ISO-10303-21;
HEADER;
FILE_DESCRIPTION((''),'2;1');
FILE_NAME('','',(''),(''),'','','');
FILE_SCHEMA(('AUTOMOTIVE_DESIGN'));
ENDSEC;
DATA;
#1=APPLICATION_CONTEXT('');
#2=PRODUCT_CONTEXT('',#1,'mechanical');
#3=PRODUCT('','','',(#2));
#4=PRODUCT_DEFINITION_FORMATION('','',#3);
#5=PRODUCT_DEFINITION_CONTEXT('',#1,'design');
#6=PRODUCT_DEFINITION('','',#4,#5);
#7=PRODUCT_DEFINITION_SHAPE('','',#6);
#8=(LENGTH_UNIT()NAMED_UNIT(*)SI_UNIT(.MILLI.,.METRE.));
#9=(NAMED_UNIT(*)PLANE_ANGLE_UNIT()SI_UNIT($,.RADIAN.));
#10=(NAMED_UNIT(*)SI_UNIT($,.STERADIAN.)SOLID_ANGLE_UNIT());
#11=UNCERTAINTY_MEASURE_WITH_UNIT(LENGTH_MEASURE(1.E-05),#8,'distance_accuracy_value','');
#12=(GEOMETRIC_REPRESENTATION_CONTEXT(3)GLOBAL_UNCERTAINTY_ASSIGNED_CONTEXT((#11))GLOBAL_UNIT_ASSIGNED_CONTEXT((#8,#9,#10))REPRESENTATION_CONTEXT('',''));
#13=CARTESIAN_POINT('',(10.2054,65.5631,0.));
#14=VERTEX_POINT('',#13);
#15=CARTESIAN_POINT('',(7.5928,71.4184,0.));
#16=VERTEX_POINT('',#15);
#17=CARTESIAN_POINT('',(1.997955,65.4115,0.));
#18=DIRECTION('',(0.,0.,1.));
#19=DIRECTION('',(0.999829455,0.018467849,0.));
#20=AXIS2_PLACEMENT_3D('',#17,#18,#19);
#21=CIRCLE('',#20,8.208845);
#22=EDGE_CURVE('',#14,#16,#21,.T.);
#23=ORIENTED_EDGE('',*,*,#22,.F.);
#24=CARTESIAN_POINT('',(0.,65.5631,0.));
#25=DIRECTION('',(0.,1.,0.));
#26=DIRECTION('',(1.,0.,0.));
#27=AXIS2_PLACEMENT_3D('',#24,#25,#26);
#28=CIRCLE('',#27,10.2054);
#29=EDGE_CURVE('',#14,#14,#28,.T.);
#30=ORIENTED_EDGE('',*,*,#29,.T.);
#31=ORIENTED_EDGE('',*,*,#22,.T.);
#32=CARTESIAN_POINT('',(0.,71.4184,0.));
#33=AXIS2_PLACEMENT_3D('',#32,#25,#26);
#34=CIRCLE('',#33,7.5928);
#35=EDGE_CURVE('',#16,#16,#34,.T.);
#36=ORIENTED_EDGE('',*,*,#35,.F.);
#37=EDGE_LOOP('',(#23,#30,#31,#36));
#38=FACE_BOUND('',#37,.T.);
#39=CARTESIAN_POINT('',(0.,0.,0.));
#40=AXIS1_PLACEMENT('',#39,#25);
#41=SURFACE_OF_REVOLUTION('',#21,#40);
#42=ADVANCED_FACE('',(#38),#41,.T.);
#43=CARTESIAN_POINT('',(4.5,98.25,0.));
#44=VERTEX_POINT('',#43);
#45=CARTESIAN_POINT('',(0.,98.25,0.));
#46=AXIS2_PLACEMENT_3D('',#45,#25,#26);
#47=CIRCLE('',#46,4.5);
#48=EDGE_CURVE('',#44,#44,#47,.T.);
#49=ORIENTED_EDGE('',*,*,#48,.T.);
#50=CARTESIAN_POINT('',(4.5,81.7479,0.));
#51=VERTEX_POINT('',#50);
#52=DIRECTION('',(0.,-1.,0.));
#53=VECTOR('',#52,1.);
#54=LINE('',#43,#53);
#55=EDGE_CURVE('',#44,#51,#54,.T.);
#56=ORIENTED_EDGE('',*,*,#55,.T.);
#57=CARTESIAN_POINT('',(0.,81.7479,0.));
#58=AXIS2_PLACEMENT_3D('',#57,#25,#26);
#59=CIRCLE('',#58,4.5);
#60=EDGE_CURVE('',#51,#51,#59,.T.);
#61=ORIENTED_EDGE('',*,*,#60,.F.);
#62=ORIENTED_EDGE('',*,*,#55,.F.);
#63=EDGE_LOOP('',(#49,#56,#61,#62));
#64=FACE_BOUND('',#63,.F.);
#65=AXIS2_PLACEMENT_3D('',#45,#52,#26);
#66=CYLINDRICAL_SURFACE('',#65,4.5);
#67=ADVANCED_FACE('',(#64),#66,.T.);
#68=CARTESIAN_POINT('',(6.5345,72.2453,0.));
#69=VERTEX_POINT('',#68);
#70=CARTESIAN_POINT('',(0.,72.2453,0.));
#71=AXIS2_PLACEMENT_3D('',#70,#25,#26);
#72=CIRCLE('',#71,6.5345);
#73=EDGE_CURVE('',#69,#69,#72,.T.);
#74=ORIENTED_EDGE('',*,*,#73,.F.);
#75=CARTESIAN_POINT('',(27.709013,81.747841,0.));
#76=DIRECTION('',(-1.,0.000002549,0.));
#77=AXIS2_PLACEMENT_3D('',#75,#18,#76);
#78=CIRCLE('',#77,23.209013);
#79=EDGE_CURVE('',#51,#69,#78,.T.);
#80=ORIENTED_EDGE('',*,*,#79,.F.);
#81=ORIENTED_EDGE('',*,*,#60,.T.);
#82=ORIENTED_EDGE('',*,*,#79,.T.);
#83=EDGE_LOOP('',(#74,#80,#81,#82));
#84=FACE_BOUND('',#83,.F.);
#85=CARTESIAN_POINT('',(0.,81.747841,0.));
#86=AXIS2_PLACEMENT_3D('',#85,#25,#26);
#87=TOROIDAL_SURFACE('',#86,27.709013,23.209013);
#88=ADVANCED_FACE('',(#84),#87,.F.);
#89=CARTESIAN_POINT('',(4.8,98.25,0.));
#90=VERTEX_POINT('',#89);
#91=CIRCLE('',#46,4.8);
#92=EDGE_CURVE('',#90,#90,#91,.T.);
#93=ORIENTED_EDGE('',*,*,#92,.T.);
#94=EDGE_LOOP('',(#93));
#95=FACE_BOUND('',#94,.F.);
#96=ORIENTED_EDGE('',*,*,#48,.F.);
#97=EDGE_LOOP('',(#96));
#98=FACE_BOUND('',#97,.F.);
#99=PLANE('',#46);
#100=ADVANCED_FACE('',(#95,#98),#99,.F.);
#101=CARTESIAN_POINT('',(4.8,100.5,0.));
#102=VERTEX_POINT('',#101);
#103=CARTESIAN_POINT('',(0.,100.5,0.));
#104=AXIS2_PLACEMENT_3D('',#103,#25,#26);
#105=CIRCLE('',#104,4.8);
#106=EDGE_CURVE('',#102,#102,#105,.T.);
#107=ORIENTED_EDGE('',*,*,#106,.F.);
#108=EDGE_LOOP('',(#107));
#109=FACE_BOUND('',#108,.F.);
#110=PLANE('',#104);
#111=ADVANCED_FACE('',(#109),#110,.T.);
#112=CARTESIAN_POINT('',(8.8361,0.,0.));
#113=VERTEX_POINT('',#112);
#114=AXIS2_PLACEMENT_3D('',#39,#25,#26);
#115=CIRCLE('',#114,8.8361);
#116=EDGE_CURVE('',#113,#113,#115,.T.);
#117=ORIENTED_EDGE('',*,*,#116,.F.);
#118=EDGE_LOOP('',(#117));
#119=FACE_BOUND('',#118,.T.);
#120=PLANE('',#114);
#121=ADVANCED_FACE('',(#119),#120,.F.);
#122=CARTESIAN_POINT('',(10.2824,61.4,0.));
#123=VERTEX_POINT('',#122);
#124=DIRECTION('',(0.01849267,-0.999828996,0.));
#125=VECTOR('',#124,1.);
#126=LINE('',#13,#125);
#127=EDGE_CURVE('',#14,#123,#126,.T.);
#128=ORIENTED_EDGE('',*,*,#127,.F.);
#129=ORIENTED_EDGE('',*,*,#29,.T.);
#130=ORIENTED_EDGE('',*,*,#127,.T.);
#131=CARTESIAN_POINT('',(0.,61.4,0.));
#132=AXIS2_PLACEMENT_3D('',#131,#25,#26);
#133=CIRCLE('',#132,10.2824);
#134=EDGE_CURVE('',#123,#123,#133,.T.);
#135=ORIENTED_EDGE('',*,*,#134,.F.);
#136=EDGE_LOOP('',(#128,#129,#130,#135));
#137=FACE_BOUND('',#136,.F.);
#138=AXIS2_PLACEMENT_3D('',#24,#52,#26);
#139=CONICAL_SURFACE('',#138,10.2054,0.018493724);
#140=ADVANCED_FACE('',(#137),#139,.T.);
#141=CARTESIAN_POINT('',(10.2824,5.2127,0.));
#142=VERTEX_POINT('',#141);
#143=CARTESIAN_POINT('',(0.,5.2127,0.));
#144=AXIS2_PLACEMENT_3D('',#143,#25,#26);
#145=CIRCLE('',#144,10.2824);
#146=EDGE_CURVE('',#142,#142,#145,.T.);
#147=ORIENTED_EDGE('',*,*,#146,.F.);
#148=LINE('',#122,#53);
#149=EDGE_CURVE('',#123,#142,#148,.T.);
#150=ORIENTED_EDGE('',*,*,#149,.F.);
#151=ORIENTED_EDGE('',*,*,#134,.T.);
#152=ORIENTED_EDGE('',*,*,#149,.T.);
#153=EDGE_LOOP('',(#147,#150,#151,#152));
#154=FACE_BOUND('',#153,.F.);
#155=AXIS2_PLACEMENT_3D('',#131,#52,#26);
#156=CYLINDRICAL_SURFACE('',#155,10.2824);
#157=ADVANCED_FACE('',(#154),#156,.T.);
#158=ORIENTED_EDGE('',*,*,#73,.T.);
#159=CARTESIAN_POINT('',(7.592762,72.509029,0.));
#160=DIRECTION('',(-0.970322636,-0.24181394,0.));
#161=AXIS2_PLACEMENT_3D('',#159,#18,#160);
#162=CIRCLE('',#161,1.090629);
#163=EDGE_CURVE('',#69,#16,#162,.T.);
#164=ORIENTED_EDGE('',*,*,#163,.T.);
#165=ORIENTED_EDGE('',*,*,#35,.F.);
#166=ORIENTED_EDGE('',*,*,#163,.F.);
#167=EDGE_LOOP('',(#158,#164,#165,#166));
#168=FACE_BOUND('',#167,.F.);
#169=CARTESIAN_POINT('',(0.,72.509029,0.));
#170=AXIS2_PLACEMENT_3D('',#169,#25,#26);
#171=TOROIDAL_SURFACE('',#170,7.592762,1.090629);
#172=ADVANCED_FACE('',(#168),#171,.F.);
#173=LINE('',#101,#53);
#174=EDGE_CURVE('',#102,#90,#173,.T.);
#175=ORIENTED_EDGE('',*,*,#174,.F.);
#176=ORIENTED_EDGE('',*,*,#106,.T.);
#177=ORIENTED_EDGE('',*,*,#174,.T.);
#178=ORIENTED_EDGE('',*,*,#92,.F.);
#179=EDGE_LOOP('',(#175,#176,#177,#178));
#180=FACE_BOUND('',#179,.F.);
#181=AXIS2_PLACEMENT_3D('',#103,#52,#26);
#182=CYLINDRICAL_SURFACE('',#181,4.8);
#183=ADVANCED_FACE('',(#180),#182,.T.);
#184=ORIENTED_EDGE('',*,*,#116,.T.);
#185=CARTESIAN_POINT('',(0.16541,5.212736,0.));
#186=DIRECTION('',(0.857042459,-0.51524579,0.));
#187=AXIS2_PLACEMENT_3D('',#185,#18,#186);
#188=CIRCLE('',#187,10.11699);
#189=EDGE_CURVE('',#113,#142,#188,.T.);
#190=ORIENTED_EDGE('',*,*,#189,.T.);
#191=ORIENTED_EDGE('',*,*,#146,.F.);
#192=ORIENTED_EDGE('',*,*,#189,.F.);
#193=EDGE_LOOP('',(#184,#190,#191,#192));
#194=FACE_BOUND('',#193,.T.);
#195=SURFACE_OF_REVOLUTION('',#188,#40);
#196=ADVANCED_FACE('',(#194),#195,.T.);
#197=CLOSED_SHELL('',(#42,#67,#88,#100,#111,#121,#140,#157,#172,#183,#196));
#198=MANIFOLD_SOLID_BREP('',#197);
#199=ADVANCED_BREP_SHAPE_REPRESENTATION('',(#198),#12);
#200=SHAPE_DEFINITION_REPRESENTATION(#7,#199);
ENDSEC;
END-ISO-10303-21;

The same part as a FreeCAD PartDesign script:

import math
import FreeCAD as App
import Part
import Sketcher
Q = App.Units.Quantity

doc = App.newDocument("Part")
params = doc.addObject("Spreadsheet::Sheet", "Params")
for row, (alias, value) in enumerate([
    ("sketch1_width", "0.3 mm"),
    ("sketch1_width2", "4.8 mm"),
    ("sketch1_height", "100.5 mm"),
    ("sketch1_height2", "2.25 mm"),
    ("revolution_angle", "360 deg"),
], start=1):
    params.set(f"A{row}", alias)
    params.set(f"B{row}", "=" + value)
    params.setAlias(f"B{row}", alias)

body = doc.addObject("PartDesign::Body", "Body")

# Sketch on XY plane
sketch1 = body.newObject("Sketcher::SketchObject", "Sketch")
sketch1.AttachmentSupport = (doc.getObject("XY_Plane"), [""])
sketch1.MapMode = "FlatFace"
sketch1.addGeometry([
    Part.LineSegment(App.Vector(0, 100.5, 0), App.Vector(0, 0, 0)),  # 0
    Part.LineSegment(App.Vector(0, 0, 0), App.Vector(8.8361, 0, 0)),  # 1
    Part.ArcOfCircle(Part.Circle(App.Vector(0.1654, 5.2127, 0), App.Vector(0, 0, 1), 10.11698), math.radians(-31.013679), math.radians(0)),  # 2
    Part.LineSegment(App.Vector(10.2824, 5.2127, 0), App.Vector(10.2824, 61.4, 0)),  # 3
    Part.LineSegment(App.Vector(10.2824, 61.4, 0), App.Vector(10.2054, 65.5631, 0)),  # 4
    Part.ArcOfCircle(Part.Circle(App.Vector(1.998, 65.4114, 0), App.Vector(0, 0, 1), 8.208802), math.radians(1.058896), math.radians(47.034804)),  # 5
    Part.ArcOfCircle(Part.Circle(App.Vector(7.5928, 72.509, 0), App.Vector(0, 0, 1), 1.090659), math.radians(-166.008351), math.radians(-90)),  # 6
    Part.ArcOfCircle(Part.Circle(App.Vector(27.709, 81.7479, 0), App.Vector(0, 0, 1), 23.209), math.radians(180), math.radians(204.169382)),  # 7
    Part.LineSegment(App.Vector(4.5, 81.7479, 0), App.Vector(4.5, 98.25, 0)),  # 8
    Part.LineSegment(App.Vector(4.5, 98.25, 0), App.Vector(4.8, 98.25, 0)),  # 9
    Part.LineSegment(App.Vector(4.8, 98.25, 0), App.Vector(4.8, 100.5, 0)),  # 10
    Part.LineSegment(App.Vector(4.8, 100.5, 0), App.Vector(0, 100.5, 0)),  # 11
], False)
sketch1.addConstraint([
    Sketcher.Constraint("Coincident", 0, 2, 1, 1),
    Sketcher.Constraint("Coincident", 1, 2, 2, 1),
    Sketcher.Constraint("Coincident", 2, 2, 3, 1),
    Sketcher.Constraint("Coincident", 3, 2, 4, 1),
    Sketcher.Constraint("Coincident", 4, 2, 5, 1),
    Sketcher.Constraint("Coincident", 5, 2, 6, 2),
    Sketcher.Constraint("Coincident", 6, 1, 7, 2),
    Sketcher.Constraint("Coincident", 7, 1, 8, 1),
    Sketcher.Constraint("Coincident", 8, 2, 9, 1),
    Sketcher.Constraint("Coincident", 9, 2, 10, 1),
    Sketcher.Constraint("Coincident", 10, 2, 11, 1),
    Sketcher.Constraint("Coincident", 11, 2, 0, 1),
    Sketcher.Constraint("Vertical", 0),
    Sketcher.Constraint("Horizontal", 1),
    Sketcher.Constraint("Vertical", 3),
    Sketcher.Constraint("Vertical", 8),
    Sketcher.Constraint("Horizontal", 9),
    Sketcher.Constraint("Vertical", 10),
    Sketcher.Constraint("Horizontal", 11),
    Sketcher.Constraint("Coincident", 0, 2, -1, 1),
    Sketcher.Constraint("DistanceX", 9, 1, 9, 2, Q("0.3 mm")),
    Sketcher.Constraint("DistanceX", 11, 2, 11, 1, Q("4.8 mm")),
    Sketcher.Constraint("DistanceY", 0, 2, 0, 1, Q("100.5 mm")),
    Sketcher.Constraint("DistanceY", 10, 1, 10, 2, Q("2.25 mm")),
    Sketcher.Constraint("DistanceY", -1, 1, 3, 2, Q("61.4 mm")),
    Sketcher.Constraint("DistanceY", 8, 1, 8, 2, Q("16.502 mm")),
    Sketcher.Constraint("Radius", 2, Q("10.117 mm")),
    Sketcher.Constraint("Radius", 7, Q("23.209 mm")),
    Sketcher.Constraint("DistanceY", 7, 3, 8, 2, Q("16.502 mm")),
    Sketcher.Constraint("Radius", 5, Q("8.2088 mm")),
    Sketcher.Constraint("Radius", 6, Q("1.0907 mm")),
    Sketcher.Constraint("DistanceX", 1, 1, 1, 2, Q("8.836 mm")),
    Sketcher.Constraint("DistanceY", 3, 1, 3, 2, Q("56.1873 mm")),
    Sketcher.Constraint("DistanceX", -1, 1, 5, 3, Q("1.998 mm")),
    Sketcher.Constraint("DistanceY", -1, 1, 6, 3, Q("72.509 mm")),
    Sketcher.Constraint("DistanceY", -1, 1, 4, 2, Q("65.563 mm")),
    Sketcher.Constraint("DistanceX", 4, 2, 3, 2, Q("0.077 mm")),
    Sketcher.Constraint("DistanceY", 5, 3, 5, 2, Q("6.007 mm")),
    Sketcher.Constraint("DistanceY", 5, 2, 6, 1, Q("0.827 mm")),
])
sketch1.setExpression("Constraints[20]", "Params.sketch1_width")
sketch1.setExpression("Constraints[21]", "Params.sketch1_width2")
sketch1.setExpression("Constraints[22]", "Params.sketch1_height")
sketch1.setExpression("Constraints[23]", "Params.sketch1_height2")
revolution = body.newObject("PartDesign::Revolution", "Revolution")
revolution.Profile = sketch1
revolution.ReferenceAxis = (sketch1, ["V_Axis"])
revolution.setExpression("Angle", "Params.revolution_angle")

doc.recompute()
